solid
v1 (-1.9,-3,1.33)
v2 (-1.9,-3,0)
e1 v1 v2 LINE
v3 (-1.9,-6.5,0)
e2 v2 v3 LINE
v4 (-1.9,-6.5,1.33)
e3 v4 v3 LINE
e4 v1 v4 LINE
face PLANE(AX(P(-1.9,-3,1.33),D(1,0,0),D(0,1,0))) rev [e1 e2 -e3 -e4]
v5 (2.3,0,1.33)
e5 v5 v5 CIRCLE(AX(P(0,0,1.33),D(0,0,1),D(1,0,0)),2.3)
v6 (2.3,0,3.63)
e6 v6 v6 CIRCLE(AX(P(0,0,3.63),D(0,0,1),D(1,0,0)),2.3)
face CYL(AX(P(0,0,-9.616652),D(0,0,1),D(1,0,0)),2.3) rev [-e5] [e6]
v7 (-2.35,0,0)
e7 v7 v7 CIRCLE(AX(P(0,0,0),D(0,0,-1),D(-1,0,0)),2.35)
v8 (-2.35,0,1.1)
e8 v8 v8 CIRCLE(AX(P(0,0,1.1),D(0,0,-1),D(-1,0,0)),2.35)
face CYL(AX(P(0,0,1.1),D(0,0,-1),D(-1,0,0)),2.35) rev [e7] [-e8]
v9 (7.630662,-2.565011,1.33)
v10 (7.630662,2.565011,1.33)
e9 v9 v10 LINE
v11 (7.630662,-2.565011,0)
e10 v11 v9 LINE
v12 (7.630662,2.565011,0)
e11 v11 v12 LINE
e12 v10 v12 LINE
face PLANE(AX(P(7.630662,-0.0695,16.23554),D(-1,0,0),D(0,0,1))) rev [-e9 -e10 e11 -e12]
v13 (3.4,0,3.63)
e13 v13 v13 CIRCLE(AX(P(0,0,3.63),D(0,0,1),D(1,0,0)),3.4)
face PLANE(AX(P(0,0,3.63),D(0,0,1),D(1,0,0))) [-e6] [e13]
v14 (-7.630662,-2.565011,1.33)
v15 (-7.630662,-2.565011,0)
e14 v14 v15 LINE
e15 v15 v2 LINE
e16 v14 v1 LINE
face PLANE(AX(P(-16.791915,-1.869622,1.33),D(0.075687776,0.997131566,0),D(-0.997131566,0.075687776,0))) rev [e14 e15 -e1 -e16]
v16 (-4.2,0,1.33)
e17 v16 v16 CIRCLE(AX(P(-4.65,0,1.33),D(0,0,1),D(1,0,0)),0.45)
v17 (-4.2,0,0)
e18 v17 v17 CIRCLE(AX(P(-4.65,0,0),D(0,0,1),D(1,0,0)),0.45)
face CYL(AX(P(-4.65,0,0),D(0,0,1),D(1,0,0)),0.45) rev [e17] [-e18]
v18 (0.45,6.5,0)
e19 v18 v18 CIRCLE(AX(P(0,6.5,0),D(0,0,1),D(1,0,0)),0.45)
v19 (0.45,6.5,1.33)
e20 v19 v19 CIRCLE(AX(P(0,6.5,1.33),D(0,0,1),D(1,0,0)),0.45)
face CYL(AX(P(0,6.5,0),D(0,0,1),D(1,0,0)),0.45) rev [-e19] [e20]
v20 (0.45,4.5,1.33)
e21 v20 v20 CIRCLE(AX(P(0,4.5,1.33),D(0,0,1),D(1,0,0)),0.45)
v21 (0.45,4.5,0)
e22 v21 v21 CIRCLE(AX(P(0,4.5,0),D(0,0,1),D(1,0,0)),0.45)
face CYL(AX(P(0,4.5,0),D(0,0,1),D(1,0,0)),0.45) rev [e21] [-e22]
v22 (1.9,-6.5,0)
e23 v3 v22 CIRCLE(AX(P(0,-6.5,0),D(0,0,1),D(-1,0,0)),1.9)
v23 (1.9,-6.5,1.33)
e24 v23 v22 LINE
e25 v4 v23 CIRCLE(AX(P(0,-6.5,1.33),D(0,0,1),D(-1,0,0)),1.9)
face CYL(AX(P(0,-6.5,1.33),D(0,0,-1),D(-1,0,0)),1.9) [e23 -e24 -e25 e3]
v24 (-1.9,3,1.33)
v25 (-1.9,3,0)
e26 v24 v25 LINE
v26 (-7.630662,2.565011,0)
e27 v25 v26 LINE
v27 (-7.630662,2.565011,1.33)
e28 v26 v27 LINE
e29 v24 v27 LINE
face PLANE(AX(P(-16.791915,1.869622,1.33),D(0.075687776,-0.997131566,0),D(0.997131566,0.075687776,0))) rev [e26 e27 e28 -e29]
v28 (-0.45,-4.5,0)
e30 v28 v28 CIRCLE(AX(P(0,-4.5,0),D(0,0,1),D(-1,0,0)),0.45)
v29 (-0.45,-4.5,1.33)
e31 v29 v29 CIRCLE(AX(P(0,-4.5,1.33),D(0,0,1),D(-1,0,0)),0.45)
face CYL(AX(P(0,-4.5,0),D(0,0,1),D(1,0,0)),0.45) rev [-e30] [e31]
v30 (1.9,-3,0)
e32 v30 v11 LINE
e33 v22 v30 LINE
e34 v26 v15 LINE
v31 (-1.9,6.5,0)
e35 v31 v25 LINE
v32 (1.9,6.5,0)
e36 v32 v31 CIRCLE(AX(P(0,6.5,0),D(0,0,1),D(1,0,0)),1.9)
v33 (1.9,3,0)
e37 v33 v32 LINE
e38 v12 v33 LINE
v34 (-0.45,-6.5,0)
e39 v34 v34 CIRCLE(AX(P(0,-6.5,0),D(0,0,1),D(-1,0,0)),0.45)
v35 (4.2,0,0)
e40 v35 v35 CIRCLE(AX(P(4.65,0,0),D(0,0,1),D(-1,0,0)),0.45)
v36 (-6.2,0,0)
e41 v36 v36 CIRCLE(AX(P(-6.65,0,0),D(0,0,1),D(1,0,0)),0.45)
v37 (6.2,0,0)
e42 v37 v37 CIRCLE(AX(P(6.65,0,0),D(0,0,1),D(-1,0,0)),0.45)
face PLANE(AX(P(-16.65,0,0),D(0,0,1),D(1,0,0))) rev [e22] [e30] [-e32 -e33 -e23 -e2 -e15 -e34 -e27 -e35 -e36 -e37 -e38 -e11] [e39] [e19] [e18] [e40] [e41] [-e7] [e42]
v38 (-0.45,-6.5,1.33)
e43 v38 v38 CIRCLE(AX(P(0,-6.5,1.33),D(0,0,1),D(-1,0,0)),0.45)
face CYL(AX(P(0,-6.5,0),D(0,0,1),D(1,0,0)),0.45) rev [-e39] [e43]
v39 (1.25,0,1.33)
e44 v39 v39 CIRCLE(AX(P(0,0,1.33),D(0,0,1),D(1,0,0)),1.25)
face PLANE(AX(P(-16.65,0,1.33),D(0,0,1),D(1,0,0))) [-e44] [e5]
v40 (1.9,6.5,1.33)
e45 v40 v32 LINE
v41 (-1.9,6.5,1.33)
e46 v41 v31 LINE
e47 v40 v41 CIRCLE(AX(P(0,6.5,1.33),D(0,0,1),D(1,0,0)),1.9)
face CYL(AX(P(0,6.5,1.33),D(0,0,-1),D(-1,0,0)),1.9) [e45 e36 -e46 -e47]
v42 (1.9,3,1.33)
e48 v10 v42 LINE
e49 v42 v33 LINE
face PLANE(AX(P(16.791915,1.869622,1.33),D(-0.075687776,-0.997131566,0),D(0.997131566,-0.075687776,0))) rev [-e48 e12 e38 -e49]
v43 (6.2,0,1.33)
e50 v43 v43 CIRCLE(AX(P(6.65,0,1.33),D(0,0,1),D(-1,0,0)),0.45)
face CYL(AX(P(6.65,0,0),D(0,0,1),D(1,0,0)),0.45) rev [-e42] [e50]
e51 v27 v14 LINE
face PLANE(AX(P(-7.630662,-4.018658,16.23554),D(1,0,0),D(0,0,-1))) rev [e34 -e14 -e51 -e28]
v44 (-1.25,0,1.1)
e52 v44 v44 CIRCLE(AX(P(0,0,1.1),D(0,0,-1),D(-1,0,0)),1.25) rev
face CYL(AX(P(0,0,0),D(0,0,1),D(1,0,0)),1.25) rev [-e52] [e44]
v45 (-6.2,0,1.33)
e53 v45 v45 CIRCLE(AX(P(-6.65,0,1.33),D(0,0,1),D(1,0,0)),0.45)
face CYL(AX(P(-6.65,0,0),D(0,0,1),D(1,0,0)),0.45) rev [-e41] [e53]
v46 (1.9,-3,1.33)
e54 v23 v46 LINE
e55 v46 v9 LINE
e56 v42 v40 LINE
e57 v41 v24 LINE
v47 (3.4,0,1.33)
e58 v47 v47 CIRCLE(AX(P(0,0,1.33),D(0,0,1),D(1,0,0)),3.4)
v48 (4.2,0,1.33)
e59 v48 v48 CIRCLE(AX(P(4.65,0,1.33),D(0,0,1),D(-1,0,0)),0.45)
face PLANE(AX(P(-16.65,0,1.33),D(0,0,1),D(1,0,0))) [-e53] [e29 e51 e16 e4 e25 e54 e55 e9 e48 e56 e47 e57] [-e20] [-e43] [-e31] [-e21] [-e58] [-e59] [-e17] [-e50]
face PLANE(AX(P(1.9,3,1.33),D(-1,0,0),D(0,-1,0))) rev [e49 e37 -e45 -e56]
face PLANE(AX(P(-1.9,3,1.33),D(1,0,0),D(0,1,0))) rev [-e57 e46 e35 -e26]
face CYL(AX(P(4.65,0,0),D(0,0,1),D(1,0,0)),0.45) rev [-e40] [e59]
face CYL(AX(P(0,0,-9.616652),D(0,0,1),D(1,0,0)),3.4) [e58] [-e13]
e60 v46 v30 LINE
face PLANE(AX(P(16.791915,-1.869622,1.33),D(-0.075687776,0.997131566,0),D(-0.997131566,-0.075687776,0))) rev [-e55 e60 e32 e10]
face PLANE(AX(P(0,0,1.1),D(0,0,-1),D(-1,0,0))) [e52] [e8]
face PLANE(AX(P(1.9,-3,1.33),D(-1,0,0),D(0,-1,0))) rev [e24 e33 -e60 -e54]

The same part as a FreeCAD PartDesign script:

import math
import FreeCAD as App
import Part
import Sketcher
from FreeCAD import Vector
Q = App.Units.Quantity

doc = App.newDocument("Part")
params = doc.addObject("Spreadsheet::Sheet", "Params")
for row, (alias, value) in enumerate([
    ("sketch1_radius", "1.9 mm"),
    ("sketch1_height", "3.5 mm"),
    ("pad1_length", "1.33 mm"),
    ("sketch2_diameter", "6.8 mm"),
    ("sketch2_diameter2", "4.6 mm"),
    ("pad2_length", "2.3 mm"),
    ("pad2_length2", "1.33 mm"),
    ("sketch3_diameter", "2.5 mm"),
    ("sketch4_diameter", "4.7 mm"),
    ("pocket2_length", "1.1 mm"),
    ("sketch5_diameter", "0.9 mm"),
    ("pocket4_length", "1.33 mm"),
], start=1):
    params.set(f"A{row}", alias)
    params.set(f"B{row}", "=" + value)
    params.setAlias(f"B{row}", alias)

body = doc.addObject("PartDesign::Body", "Body")

# Sketch on XY plane
sketch1 = body.newObject("Sketcher::SketchObject", "Sketch")
sketch1.AttachmentSupport = (doc.getObject("XY_Plane"), [""])
sketch1.MapMode = "FlatFace"
sketch1.addGeometry([
    Part.LineSegment(Vector(-1.9, 3, 0), Vector(-16.791915, 1.869622, 0)),  # 0
    Part.ArcOfCircle(Part.Circle(Vector(-16.65, 0, 0), Vector(0, 0, 1), 1.875), math.radians(94.340741), math.radians(265.659259)),  # 1
    Part.LineSegment(Vector(-16.791915, -1.869622, 0), Vector(-1.9, -3, 0)),  # 2
    Part.LineSegment(Vector(-1.9, -3, 0), Vector(-1.9, -6.5, 0)),  # 3
    Part.ArcOfCircle(Part.Circle(Vector(0, -6.5, 0), Vector(0, 0, 1), 1.9), math.radians(180), math.radians(360)),  # 4
    Part.LineSegment(Vector(1.9, -6.5, 0), Vector(1.9, -3, 0)),  # 5
    Part.LineSegment(Vector(1.9, -3, 0), Vector(16.791915, -1.869622, 0)),  # 6
    Part.ArcOfCircle(Part.Circle(Vector(16.65, 0, 0), Vector(0, 0, 1), 1.875), math.radians(-85.659259), math.radians(85.659259)),  # 7
    Part.LineSegment(Vector(16.791915, 1.869622, 0), Vector(1.9, 3, 0)),  # 8
    Part.LineSegment(Vector(1.9, 3, 0), Vector(1.9, 6.5, 0)),  # 9
    Part.ArcOfCircle(Part.Circle(Vector(0, 6.5, 0), Vector(0, 0, 1), 1.9), math.radians(0), math.radians(180)),  # 10
    Part.LineSegment(Vector(-1.9, 6.5, 0), Vector(-1.9, 3, 0)),  # 11
], False)
sketch1.addConstraint([
    Sketcher.Constraint("Tangent", 0, 2, 1, 1),
    Sketcher.Constraint("Tangent", 1, 2, 2, 1),
    Sketcher.Constraint("Coincident", 2, 2, 3, 1),
    Sketcher.Constraint("Tangent", 3, 2, 4, 1),
    Sketcher.Constraint("Tangent", 4, 2, 5, 1),
    Sketcher.Constraint("Coincident", 5, 2, 6, 1),
    Sketcher.Constraint("Tangent", 6, 2, 7, 1),
    Sketcher.Constraint("Tangent", 7, 2, 8, 1),
    Sketcher.Constraint("Coincident", 8, 2, 9, 1),
    Sketcher.Constraint("Tangent", 9, 2, 10, 1),
    Sketcher.Constraint("Tangent", 10, 2, 11, 1),
    Sketcher.Constraint("Coincident", 11, 2, 0, 1),
    Sketcher.Constraint("Vertical", 3),
    Sketcher.Constraint("Vertical", 5),
    Sketcher.Constraint("Vertical", 9),
    Sketcher.Constraint("Vertical", 11),
    Sketcher.Constraint("Equal", 1, 7),
    Sketcher.Constraint("Equal", 4, 10),
    Sketcher.Constraint("Symmetric", 1, 3, 7, 3, -1, 1),
    Sketcher.Constraint("Symmetric", 4, 3, 10, 3, -1, 1),
    Sketcher.Constraint("Symmetric", 2, 2, 5, 2, -2),
    Sketcher.Constraint("Symmetric", 0, 2, 7, 2, -2),
    Sketcher.Constraint("Parallel", 0, 6),
    Sketcher.Constraint("Radius", 4, Q("1.9 mm")),
    Sketcher.Constraint("DistanceY", 3, 2, 3, 1, Q("3.5 mm")),
    Sketcher.Constraint("DistanceY", 2, 2, -1, 1, Q("3 mm")),
    Sketcher.Constraint("Radius", 1, Q("1.875 mm")),
    Sketcher.Constraint("DistanceX", 1, 3, 7, 3, Q("33.3 mm")),
])
sketch1.setExpression("Constraints[23]", "Params.sketch1_radius")
sketch1.setExpression("Constraints[24]", "Params.sketch1_height")
pad1 = body.newObject("PartDesign::Pad", "Pad")
pad1.Profile = sketch1
pad1.setExpression("Length", "Params.pad1_length")

# Sketch on XY plane
sketch2 = body.newObject("Sketcher::SketchObject", "Sketch001")
sketch2.AttachmentSupport = (doc.getObject("XY_Plane"), [""])
sketch2.MapMode = "FlatFace"
sketch2.AttachmentOffset = App.Placement(Vector(0, 0, 1.33), App.Rotation())
sketch2.addGeometry([
    Part.Circle(Vector(0, 0, 0), Vector(0, 0, 1), 3.4),
    Part.Circle(Vector(0, 0, 0), Vector(0, 0, 1), 2.3),
], False)
sketch2.addConstraint([
    Sketcher.Constraint("Coincident", 0, 3, -1, 1),
    Sketcher.Constraint("Coincident", 1, 3, -1, 1),
    Sketcher.Constraint("Diameter", 0, Q("6.8 mm")),
    Sketcher.Constraint("Diameter", 1, Q("4.6 mm")),
])
sketch2.setExpression("Constraints[2]", "Params.sketch2_diameter")
sketch2.setExpression("Constraints[3]", "Params.sketch2_diameter2")
pad2 = body.newObject("PartDesign::Pad", "Pad001")
pad2.Profile = sketch2
pad2.Type = "TwoLengths"
pad2.setExpression("Length", "Params.pad2_length")
pad2.setExpression("Length2", "Params.pad2_length2")

# Sketch on XY plane
sketch3 = body.newObject("Sketcher::SketchObject", "Sketch002")
sketch3.AttachmentSupport = (doc.getObject("XY_Plane"), [""])
sketch3.MapMode = "FlatFace"
sketch3.AttachmentOffset = App.Placement(Vector(0, 0, 1.33), App.Rotation())
sketch3.addGeometry(Part.Circle(Vector(0, 0, 0), Vector(0, 0, 1), 1.25), False)
sketch3.addConstraint([
    Sketcher.Constraint("Coincident", 0, 3, -1, 1),
    Sketcher.Constraint("Diameter", 0, Q("2.5 mm")),
])
sketch3.setExpression("Constraints[1]", "Params.sketch3_diameter")
pocket1 = body.newObject("PartDesign::Pocket", "Pocket")
pocket1.Profile = sketch3
pocket1.Type = "ThroughAll"

# Sketch on XY plane
sketch4 = body.newObject("Sketcher::SketchObject", "Sketch003")
sketch4.AttachmentSupport = (doc.getObject("XY_Plane"), [""])
sketch4.MapMode = "FlatFace"
sketch4.addGeometry(Part.Circle(Vector(0, 0, 0), Vector(0, 0, 1), 2.35), False)
sketch4.addConstraint([
    Sketcher.Constraint("Coincident", 0, 3, -1, 1),
    Sketcher.Constraint("Diameter", 0, Q("4.7 mm")),
])
sketch4.setExpression("Constraints[1]", "Params.sketch4_diameter")
pocket2 = body.newObject("PartDesign::Pocket", "Pocket001")
pocket2.Profile = sketch4
pocket2.setExpression("Length", "Params.pocket2_length")
pocket2.Reversed = True

# Sketch on XY plane
sketch5 = body.newObject("Sketcher::SketchObject", "Sketch004")
sketch5.AttachmentSupport = (doc.getObject("XY_Plane"), [""])
sketch5.MapMode = "FlatFace"
sketch5.AttachmentOffset = App.Placement(Vector(0, 0, 1.33), App.Rotation())
sketch5.addGeometry([
    Part.Circle(Vector(0, 6.5, 0), Vector(0, 0, 1), 0.45),  # 0
    Part.Circle(Vector(-16.65, 0, 0), Vector(0, 0, 1), 0.45),  # 1
    Part.Circle(Vector(0, 4.5, 0), Vector(0, 0, 1), 0.45),  # 2
    Part.Circle(Vector(-14.65, 0, 0), Vector(0, 0, 1), 0.45),  # 3
    Part.Circle(Vector(-12.65, 0, 0), Vector(0, 0, 1), 0.45),  # 4
    Part.Circle(Vector(-10.65, 0, 0), Vector(0, 0, 1), 0.45),  # 5
    Part.Circle(Vector(-8.65, 0, 0), Vector(0, 0, 1), 0.45),  # 6
    Part.Circle(Vector(-6.65, 0, 0), Vector(0, 0, 1), 0.45),  # 7
    Part.Circle(Vector(-4.65, 0, 0), Vector(0, 0, 1), 0.45),  # 8
    Part.Circle(Vector(0, -4.5, 0), Vector(0, 0, 1), 0.45),  # 9
    Part.Circle(Vector(0, -6.5, 0), Vector(0, 0, 1), 0.45),  # 10
    Part.Circle(Vector(4.65, 0, 0), Vector(0, 0, 1), 0.45),  # 11
    Part.Circle(Vector(6.65, 0, 0), Vector(0, 0, 1), 0.45),  # 12
    Part.Circle(Vector(8.65, 0, 0), Vector(0, 0, 1), 0.45),  # 13
    Part.Circle(Vector(10.65, 0, 0), Vector(0, 0, 1), 0.45),  # 14
    Part.Circle(Vector(12.65, 0, 0), Vector(0, 0, 1), 0.45),  # 15
    Part.Circle(Vector(14.65, 0, 0), Vector(0, 0, 1), 0.45),  # 16
    Part.Circle(Vector(16.65, 0, 0), Vector(0, 0, 1), 0.45),  # 17
], False)
sketch5.addConstraint([
    Sketcher.Constraint("Equal", 0, 1),
    Sketcher.Constraint("Equal", 1, 2),
    Sketcher.Constraint("Equal", 2, 3),
    Sketcher.Constraint("Equal", 3, 4),
    Sketcher.Constraint("Equal", 4, 5),
    Sketcher.Constraint("Equal", 5, 6),
    Sketcher.Constraint("Equal", 6, 7),
    Sketcher.Constraint("Equal", 7, 8),
    Sketcher.Constraint("Equal", 8, 9),
    Sketcher.Constraint("Equal", 9, 10),
    Sketcher.Constraint("Equal", 10, 11),
    Sketcher.Constraint("Equal", 11, 12),
    Sketcher.Constraint("Equal", 12, 13),
    Sketcher.Constraint("Equal", 13, 14),
    Sketcher.Constraint("Equal", 14, 15),
    Sketcher.Constraint("Equal", 15, 16),
    Sketcher.Constraint("Equal", 16, 17),
    Sketcher.Constraint("Symmetric", 2, 3, 9, 3, -1, 1),
    Sketcher.Constraint("Symmetric", 0, 3, 10, 3, -1, 1),
    Sketcher.Constraint("Symmetric", 8, 3, 11, 3, -1, 1),
    Sketcher.Constraint("Symmetric", 7, 3, 12, 3, -1, 1),
    Sketcher.Constraint("Symmetric", 6, 3, 13, 3, -1, 1),
    Sketcher.Constraint("Symmetric", 5, 3, 14, 3, -1, 1),
    Sketcher.Constraint("Symmetric", 4, 3, 15, 3, -1, 1),
    Sketcher.Constraint("Symmetric", 3, 3, 16, 3, -1, 1),
    Sketcher.Constraint("Symmetric", 1, 3, 17, 3, -1, 1),
    Sketcher.Constraint("PointOnObject", 0, 3, -2),
    Sketcher.Constraint("PointOnObject", 1, 3, -1),
    Sketcher.Constraint("PointOnObject", 2, 3, -2),
    Sketcher.Constraint("PointOnObject", 3, 3, -1),
    Sketcher.Constraint("PointOnObject", 4, 3, -1),
    Sketcher.Constraint("PointOnObject", 5, 3, -1),
    Sketcher.Constraint("PointOnObject", 6, 3, -1),
    Sketcher.Constraint("PointOnObject", 7, 3, -1),
    Sketcher.Constraint("PointOnObject", 8, 3, -1),
    Sketcher.Constraint("Diameter", 0, Q("0.9 mm")),
    Sketcher.Constraint("DistanceY", 2, 3, 0, 3, Q("2 mm")),
    Sketcher.Constraint("DistanceX", 1, 3, 3, 3, Q("2 mm")),
    Sketcher.Constraint("DistanceX", 3, 3, 4, 3, Q("2 mm")),
    Sketcher.Constraint("DistanceX", 4, 3, 5, 3, Q("2 mm")),
    Sketcher.Constraint("DistanceX", 5, 3, 6, 3, Q("2 mm")),
    Sketcher.Constraint("DistanceX", 6, 3, 7, 3, Q("2 mm")),
    Sketcher.Constraint("DistanceX", 7, 3, 8, 3, Q("2 mm")),
    Sketcher.Constraint("DistanceY", 9, 3, 2, 3, Q("9 mm")),
    Sketcher.Constraint("DistanceX", 8, 3, 11, 3, Q("9.3 mm")),
])
sketch5.setExpression("Constraints[35]", "Params.sketch5_diameter")
pocket3 = body.newObject("PartDesign::Pocket", "Pocket002")
pocket3.Profile = sketch5
pocket3.Type = "ThroughAll"

# Sketch on XY plane
sketch6 = body.newObject("Sketcher::SketchObject", "Sketch005")
sketch6.AttachmentSupport = (doc.getObject("XY_Plane"), [""])
sketch6.MapMode = "FlatFace"
sketch6.addGeometry([
    Part.LineSegment(Vector(7.630662, 5.641889, 0), Vector(18.981826, 5.641889, 0)),  # 0
    Part.LineSegment(Vector(18.981826, 5.641889, 0), Vector(18.981826, -4.018658, 0)),  # 1
    Part.LineSegment(Vector(18.981826, -4.018658, 0), Vector(7.630662, -4.018658, 0)),  # 2
    Part.LineSegment(Vector(7.630662, -4.018658, 0), Vector(7.630662, 5.641889, 0)),  # 3
    Part.LineSegment(Vector(-7.630662, 5.641889, 0), Vector(-7.630662, -4.018658, 0)),  # 4
    Part.LineSegment(Vector(-7.630662, -4.018658, 0), Vector(-18.981826, -4.018658, 0)),  # 5
    Part.LineSegment(Vector(-18.981826, -4.018658, 0), Vector(-18.981826, 5.641889, 0)),  # 6
    Part.LineSegment(Vector(-18.981826, 5.641889, 0), Vector(-7.630662, 5.641889, 0)),  # 7
], False)
sketch6.addConstraint([
    Sketcher.Constraint("Coincident", 0, 2, 1, 1),
    Sketcher.Constraint("Coincident", 1, 2, 2, 1),
    Sketcher.Constraint("Coincident", 2, 2, 3, 1),
    Sketcher.Constraint("Coincident", 3, 2, 0, 1),
    Sketcher.Constraint("Coincident", 4, 2, 5, 1),
    Sketcher.Constraint("Coincident", 5, 2, 6, 1),
    Sketcher.Constraint("Coincident", 6, 2, 7, 1),
    Sketcher.Constraint("Coincident", 7, 2, 4, 1),
    Sketcher.Constraint("Horizontal", 0),
    Sketcher.Constraint("Vertical", 1),
    Sketcher.Constraint("Horizontal", 2),
    Sketcher.Constraint("Vertical", 3),
    Sketcher.Constraint("Vertical", 4),
    Sketcher.Constraint("Horizontal", 5),
    Sketcher.Constraint("Vertical", 6),
    Sketcher.Constraint("Horizontal", 7),
    Sketcher.Constraint("Symmetric", 2, 2, 4, 2, -2),
    Sketcher.Constraint("Symmetric", 0, 2, 6, 2, -2),
    Sketcher.Constraint("DistanceX", 0, 1, 0, 2, Q("11.351165 mm")),
    Sketcher.Constraint("DistanceY", 1, 2, 1, 1, Q("9.660548 mm")),
    Sketcher.Constraint("DistanceY", -1, 1, 0, 2, Q("5.641889 mm")),
    Sketcher.Constraint("DistanceX", -1, 1, 2, 2, Q("7.630662 mm")),
])
pocket4 = body.newObject("PartDesign::Pocket", "Pocket003")
pocket4.Profile = sketch6
pocket4.setExpression("Length", "Params.pocket4_length")
pocket4.Reversed = True

doc.recompute()
